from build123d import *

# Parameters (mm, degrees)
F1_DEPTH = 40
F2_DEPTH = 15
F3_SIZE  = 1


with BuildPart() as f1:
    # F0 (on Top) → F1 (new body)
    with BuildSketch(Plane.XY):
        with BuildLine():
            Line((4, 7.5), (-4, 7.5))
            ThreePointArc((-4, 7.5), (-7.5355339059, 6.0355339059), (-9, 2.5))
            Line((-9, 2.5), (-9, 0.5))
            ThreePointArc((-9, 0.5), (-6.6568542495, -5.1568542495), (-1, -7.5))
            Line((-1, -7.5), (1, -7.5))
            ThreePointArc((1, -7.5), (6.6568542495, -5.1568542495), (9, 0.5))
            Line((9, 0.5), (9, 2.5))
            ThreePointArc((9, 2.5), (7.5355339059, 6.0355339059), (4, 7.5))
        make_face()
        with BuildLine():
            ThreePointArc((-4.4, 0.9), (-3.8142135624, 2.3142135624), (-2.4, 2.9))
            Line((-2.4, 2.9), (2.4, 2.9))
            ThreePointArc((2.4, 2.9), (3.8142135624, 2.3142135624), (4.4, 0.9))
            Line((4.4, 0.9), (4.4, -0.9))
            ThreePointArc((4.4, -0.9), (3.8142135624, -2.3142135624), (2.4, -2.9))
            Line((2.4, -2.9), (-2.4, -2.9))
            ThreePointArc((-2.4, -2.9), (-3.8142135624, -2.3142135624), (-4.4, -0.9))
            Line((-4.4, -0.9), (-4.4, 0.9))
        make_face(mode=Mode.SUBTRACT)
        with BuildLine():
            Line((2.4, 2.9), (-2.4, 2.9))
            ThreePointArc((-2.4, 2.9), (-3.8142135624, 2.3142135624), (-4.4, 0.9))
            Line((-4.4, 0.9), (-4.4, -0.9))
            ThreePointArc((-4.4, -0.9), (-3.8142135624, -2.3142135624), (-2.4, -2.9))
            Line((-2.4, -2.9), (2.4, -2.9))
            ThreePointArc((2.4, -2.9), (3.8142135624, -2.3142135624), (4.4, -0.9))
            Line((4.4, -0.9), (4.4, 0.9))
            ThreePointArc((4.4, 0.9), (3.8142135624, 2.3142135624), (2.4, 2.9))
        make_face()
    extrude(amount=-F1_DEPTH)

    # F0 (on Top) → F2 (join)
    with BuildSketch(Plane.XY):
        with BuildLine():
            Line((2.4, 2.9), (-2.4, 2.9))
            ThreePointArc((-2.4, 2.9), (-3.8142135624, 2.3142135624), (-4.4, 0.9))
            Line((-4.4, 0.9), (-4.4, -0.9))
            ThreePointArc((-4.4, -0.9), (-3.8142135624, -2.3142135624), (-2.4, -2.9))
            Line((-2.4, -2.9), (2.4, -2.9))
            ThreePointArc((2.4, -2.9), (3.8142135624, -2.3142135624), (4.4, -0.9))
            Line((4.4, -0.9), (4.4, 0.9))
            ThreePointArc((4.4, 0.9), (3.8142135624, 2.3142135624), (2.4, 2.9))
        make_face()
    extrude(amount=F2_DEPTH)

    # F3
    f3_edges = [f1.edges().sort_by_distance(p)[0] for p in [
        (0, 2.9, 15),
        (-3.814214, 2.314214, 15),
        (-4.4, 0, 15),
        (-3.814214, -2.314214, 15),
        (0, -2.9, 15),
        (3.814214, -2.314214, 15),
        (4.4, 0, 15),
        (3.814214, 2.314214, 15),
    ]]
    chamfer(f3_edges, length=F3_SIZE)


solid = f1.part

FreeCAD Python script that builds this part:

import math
import FreeCAD as App
import Part
import Sketcher

V = App.Vector


def edges_at(feature, points):
    """Names of the edges that pass closest to the given points."""
    edges = feature.Shape.Edges
    near = lambda p: min(range(len(edges)), key=lambda i: edges[i].distToShape(Part.Vertex(*p))[0])
    return sorted({f"Edge{near(p) + 1}" for p in points})

doc = App.newDocument("Part")
body = doc.addObject("PartDesign::Body", "Body")

sketch1 = body.newObject("Sketcher::SketchObject", "Sketch")
sketch1.AttachmentSupport = (doc.getObject("XY_Plane"), [""])
sketch1.MapMode = "FlatFace"
sketch1.addGeometry([
    Part.LineSegment(V(4, 7.5, 0), V(-4, 7.5, 0)),
    Part.ArcOfCircle(Part.Circle(V(-4, 2.5, 0), V(0, 0, 1), 5), math.radians(90), math.radians(180)),
    Part.LineSegment(V(-9, 2.5, 0), V(-9, 0.5, 0)),
    Part.ArcOfCircle(Part.Circle(V(-1, 0.5, 0), V(0, 0, 1), 8), math.radians(180), math.radians(270)),
    Part.LineSegment(V(-1, -7.5, 0), V(1, -7.5, 0)),
    Part.ArcOfCircle(Part.Circle(V(1, 0.5, 0), V(0, 0, 1), 8), math.radians(-90), math.radians(0)),
    Part.LineSegment(V(9, 0.5, 0), V(9, 2.5, 0)),
    Part.ArcOfCircle(Part.Circle(V(4, 2.5, 0), V(0, 0, 1), 5), math.radians(0), math.radians(90)),
], False)
sketch1.addConstraint([
    Sketcher.Constraint("Tangent", 0, 2, 1, 1),
    Sketcher.Constraint("Tangent", 1, 2, 2, 1),
    Sketcher.Constraint("Tangent", 2, 2, 3, 1),
    Sketcher.Constraint("Tangent", 3, 2, 4, 1),
    Sketcher.Constraint("Tangent", 4, 2, 5, 1),
    Sketcher.Constraint("Tangent", 5, 2, 6, 1),
    Sketcher.Constraint("Tangent", 6, 2, 7, 1),
    Sketcher.Constraint("Tangent", 7, 2, 0, 1),
    Sketcher.Constraint("Horizontal", 0),
    Sketcher.Constraint("Vertical", 2),
    Sketcher.Constraint("Horizontal", 4),
    Sketcher.Constraint("Vertical", 6),
    Sketcher.Constraint("Equal", 3, 5),
    Sketcher.Constraint("Equal", 1, 7),
    Sketcher.Constraint("Equal", 4, 2),
    Sketcher.Constraint("Radius", 1, 5.0),
    Sketcher.Constraint("Radius", 3, 8.0),
    Sketcher.Constraint("DistanceX", 0, 2, 0, 1, 8.0),
    Sketcher.Constraint("DistanceX", 1, 3, -1, 1, 4.0),
    Sketcher.Constraint("DistanceY", -1, 1, 1, 3, 2.5),
])
pad1 = body.newObject("PartDesign::Pad", "Pad")
pad1.Profile = sketch1
pad1.Length = 40
pad1.Reversed = True

sketch2 = body.newObject("Sketcher::SketchObject", "Sketch001")
sketch2.AttachmentSupport = (doc.getObject("XY_Plane"), [""])
sketch2.MapMode = "FlatFace"
sketch2.addGeometry([
    Part.LineSegment(V(2.4, 2.9, 0), V(-2.4, 2.9, 0)),
    Part.ArcOfCircle(Part.Circle(V(-2.4, 0.9, 0), V(0, 0, 1), 2), math.radians(90), math.radians(180)),
    Part.LineSegment(V(-4.4, 0.9, 0), V(-4.4, -0.9, 0)),
    Part.ArcOfCircle(Part.Circle(V(-2.4, -0.9, 0), V(0, 0, 1), 2), math.radians(180), math.radians(270)),
    Part.LineSegment(V(-2.4, -2.9, 0), V(2.4, -2.9, 0)),
    Part.ArcOfCircle(Part.Circle(V(2.4, -0.9, 0), V(0, 0, 1), 2), math.radians(-90), math.radians(0)),
    Part.LineSegment(V(4.4, -0.9, 0), V(4.4, 0.9, 0)),
    Part.ArcOfCircle(Part.Circle(V(2.4, 0.9, 0), V(0, 0, 1), 2), math.radians(0), math.radians(90)),
], False)
sketch2.addConstraint([
    Sketcher.Constraint("Tangent", 0, 2, 1, 1),
    Sketcher.Constraint("Tangent", 1, 2, 2, 1),
    Sketcher.Constraint("Tangent", 2, 2, 3, 1),
    Sketcher.Constraint("Tangent", 3, 2, 4, 1),
    Sketcher.Constraint("Tangent", 4, 2, 5, 1),
    Sketcher.Constraint("Tangent", 5, 2, 6, 1),
    Sketcher.Constraint("Tangent", 6, 2, 7, 1),
    Sketcher.Constraint("Tangent", 7, 2, 0, 1),
    Sketcher.Constraint("Horizontal", 0),
    Sketcher.Constraint("Vertical", 2),
    Sketcher.Constraint("Horizontal", 4),
    Sketcher.Constraint("Vertical", 6),
    Sketcher.Constraint("Equal", 1, 3),
    Sketcher.Constraint("Equal", 3, 5),
    Sketcher.Constraint("Equal", 5, 7),
    Sketcher.Constraint("Symmetric", 1, 3, 5, 3, -1, 1),
    Sketcher.Constraint("Radius", 1, 2.0),
    Sketcher.Constraint("DistanceX", 0, 2, 0, 1, 4.8),
    Sketcher.Constraint("DistanceY", 2, 2, 2, 1, 1.8),
])
pad2 = body.newObject("PartDesign::Pad", "Pad001")
pad2.Profile = sketch2
pad2.Length = 15
doc.recompute()

chamfer = body.newObject("PartDesign::Chamfer", "Chamfer")
chamfer.Base = (pad2, edges_at(pad2, [
    (0, 2.9, 15),
    (-3.814, 2.314, 15),
    (-4.4, 0, 15),
    (-3.814, -2.314, 15),
    (0, -2.9, 15),
    (3.814, -2.314, 15),
    (4.4, 0, 15),
    (3.814, 2.314, 15),
]))
chamfer.Size = 1

doc.recompute()
